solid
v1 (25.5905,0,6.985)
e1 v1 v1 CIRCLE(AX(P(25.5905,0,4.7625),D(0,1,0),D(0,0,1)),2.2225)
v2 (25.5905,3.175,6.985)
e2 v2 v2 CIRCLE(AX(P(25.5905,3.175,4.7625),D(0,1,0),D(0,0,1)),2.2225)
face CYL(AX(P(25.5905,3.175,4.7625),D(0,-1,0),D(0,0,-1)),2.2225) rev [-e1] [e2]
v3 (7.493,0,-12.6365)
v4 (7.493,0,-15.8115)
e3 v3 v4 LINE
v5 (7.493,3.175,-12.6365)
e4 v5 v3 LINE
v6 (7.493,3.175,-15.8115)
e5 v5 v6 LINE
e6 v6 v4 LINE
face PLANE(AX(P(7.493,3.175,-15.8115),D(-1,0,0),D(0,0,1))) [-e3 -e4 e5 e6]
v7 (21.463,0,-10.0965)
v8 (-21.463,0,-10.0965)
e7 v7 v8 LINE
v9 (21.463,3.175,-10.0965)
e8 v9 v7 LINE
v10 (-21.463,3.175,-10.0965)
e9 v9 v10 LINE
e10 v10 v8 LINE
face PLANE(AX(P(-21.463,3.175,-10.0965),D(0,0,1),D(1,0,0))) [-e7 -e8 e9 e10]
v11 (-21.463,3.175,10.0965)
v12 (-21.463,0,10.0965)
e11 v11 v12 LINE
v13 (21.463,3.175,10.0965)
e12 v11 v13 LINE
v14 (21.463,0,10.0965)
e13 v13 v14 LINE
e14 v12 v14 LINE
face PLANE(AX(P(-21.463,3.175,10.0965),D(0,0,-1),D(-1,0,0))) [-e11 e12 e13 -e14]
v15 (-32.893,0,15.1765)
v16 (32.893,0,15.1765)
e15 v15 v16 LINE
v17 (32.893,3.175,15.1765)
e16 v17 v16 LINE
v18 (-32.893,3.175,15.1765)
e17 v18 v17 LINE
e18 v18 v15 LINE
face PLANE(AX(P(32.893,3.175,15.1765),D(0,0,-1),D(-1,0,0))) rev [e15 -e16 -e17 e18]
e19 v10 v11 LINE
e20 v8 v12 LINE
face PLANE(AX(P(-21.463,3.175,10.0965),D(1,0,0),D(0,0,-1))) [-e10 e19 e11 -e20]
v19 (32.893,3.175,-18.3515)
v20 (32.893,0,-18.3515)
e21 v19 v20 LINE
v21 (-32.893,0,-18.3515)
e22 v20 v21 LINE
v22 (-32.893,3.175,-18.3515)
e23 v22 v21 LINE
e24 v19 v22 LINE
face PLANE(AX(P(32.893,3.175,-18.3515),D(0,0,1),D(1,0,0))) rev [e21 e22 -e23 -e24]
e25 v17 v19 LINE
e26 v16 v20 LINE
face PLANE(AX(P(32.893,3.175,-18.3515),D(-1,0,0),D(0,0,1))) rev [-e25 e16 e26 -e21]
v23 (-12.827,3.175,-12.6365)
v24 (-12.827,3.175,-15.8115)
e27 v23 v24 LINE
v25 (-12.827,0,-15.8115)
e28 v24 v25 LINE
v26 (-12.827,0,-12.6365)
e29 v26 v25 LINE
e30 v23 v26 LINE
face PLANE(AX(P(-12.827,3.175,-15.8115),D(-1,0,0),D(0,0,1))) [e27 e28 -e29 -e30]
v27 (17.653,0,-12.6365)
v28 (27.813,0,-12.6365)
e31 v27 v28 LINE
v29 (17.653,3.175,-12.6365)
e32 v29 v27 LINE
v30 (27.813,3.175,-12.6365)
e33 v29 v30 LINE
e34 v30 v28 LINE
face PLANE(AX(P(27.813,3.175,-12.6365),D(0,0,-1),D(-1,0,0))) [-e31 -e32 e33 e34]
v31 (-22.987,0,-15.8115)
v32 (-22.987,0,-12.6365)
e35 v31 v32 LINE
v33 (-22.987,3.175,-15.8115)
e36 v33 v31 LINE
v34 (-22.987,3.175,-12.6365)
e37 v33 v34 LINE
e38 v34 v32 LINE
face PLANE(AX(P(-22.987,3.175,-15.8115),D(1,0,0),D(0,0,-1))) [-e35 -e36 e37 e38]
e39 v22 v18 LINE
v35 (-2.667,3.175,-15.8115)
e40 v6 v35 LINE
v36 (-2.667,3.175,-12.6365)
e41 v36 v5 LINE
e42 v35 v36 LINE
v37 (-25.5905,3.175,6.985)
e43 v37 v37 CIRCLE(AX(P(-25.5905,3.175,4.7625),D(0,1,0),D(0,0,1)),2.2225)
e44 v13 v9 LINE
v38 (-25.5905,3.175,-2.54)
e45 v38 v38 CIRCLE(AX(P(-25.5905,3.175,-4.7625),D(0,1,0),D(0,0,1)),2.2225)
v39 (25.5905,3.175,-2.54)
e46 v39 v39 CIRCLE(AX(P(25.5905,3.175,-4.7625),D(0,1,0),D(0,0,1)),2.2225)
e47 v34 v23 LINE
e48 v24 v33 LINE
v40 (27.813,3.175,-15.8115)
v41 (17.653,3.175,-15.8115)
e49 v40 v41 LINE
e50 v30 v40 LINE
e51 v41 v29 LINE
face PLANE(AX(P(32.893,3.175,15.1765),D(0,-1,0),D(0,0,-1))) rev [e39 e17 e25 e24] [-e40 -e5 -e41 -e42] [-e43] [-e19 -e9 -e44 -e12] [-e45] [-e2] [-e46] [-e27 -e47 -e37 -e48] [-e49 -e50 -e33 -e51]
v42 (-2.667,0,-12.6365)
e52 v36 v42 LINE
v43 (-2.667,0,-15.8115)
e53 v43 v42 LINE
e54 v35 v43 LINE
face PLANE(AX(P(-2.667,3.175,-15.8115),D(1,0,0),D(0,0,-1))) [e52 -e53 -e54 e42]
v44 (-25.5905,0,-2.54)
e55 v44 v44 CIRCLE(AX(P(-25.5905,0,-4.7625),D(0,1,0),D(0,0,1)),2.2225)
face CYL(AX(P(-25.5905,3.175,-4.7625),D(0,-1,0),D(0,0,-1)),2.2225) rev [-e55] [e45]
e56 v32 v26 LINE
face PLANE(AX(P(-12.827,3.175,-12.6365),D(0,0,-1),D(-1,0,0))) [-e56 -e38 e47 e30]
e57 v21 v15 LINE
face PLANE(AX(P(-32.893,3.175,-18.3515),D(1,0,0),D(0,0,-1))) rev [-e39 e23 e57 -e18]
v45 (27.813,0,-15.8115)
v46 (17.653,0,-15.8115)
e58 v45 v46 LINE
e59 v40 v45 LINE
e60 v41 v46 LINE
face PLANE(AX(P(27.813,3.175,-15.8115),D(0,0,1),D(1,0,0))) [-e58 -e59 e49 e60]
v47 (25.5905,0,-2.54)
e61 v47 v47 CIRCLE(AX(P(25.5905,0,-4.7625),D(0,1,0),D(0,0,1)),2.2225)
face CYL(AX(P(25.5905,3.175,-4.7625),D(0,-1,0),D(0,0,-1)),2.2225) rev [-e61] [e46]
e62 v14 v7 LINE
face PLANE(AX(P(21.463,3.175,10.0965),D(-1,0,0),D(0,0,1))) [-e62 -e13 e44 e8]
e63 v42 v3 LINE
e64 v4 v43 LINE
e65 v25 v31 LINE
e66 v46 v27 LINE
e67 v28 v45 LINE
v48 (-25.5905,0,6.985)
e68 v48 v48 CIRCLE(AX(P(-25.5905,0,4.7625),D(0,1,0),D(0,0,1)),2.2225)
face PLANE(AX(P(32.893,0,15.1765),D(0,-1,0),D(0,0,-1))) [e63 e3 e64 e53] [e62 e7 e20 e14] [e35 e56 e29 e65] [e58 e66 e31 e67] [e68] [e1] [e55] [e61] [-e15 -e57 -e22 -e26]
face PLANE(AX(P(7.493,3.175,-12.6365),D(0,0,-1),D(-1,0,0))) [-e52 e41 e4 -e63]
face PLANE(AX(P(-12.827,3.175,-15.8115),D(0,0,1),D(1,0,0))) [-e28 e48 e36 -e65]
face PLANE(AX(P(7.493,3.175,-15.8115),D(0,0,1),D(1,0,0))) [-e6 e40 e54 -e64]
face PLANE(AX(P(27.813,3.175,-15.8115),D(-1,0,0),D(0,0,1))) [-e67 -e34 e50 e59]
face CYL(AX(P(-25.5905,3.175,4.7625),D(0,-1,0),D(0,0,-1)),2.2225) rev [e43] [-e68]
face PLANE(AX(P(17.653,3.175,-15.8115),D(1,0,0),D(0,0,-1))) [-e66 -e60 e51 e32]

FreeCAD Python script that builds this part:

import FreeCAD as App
import Part
import Sketcher

V = App.Vector
Q = App.Units.Quantity

doc = App.newDocument("Part")
body = doc.addObject("PartDesign::Body", "Body")

# Sketch on XZ plane
sketch1 = doc.addObject("Sketcher::SketchObject", "Sketch")
body.addObject(sketch1)
sketch1.AttachmentSupport = (doc.XZ_Plane, [""])
sketch1.MapMode = "FlatFace"
sketch1.addGeometry(Part.LineSegment(V(-32.893, -18.3515, 0), V(-32.893, 15.1765, 0)), False)
sketch1.addGeometry(Part.LineSegment(V(-32.893, 15.1765, 0), V(32.893, 15.1765, 0)), False)
sketch1.addGeometry(Part.LineSegment(V(32.893, 15.1765, 0), V(32.893, -18.3515, 0)), False)
sketch1.addGeometry(Part.LineSegment(V(32.893, -18.3515, 0), V(-32.893, -18.3515, 0)), False)
sketch1.addGeometry(Part.Circle(V(-25.5905, 4.7625, 0), V(0, 0, 1), 2.2225), False)
sketch1.addGeometry(Part.LineSegment(V(21.463, 10.0965, 0), V(-21.463, 10.0965, 0)), False)
sketch1.addGeometry(Part.LineSegment(V(-21.463, 10.0965, 0), V(-21.463, -10.0965, 0)), False)
sketch1.addGeometry(Part.LineSegment(V(-21.463, -10.0965, 0), V(21.463, -10.0965, 0)), False)
sketch1.addGeometry(Part.LineSegment(V(21.463, -10.0965, 0), V(21.463, 10.0965, 0)), False)
sketch1.addGeometry(Part.Circle(V(25.5905, 4.7625, 0), V(0, 0, 1), 2.2225), False)
sketch1.addGeometry(Part.Circle(V(-25.5905, -4.7625, 0), V(0, 0, 1), 2.2225), False)
sketch1.addGeometry(Part.LineSegment(V(-12.827, -12.6365, 0), V(-22.987, -12.6365, 0)), False)
sketch1.addGeometry(Part.LineSegment(V(-22.987, -12.6365, 0), V(-22.987, -15.8115, 0)), False)
sketch1.addGeometry(Part.LineSegment(V(-22.987, -15.8115, 0), V(-12.827, -15.8115, 0)), False)
sketch1.addGeometry(Part.LineSegment(V(-12.827, -15.8115, 0), V(-12.827, -12.6365, 0)), False)
sketch1.addGeometry(Part.Circle(V(25.5905, -4.7625, 0), V(0, 0, 1), 2.2225), False)
sketch1.addGeometry(Part.LineSegment(V(7.493, -12.6365, 0), V(-2.667, -12.6365, 0)), False)
sketch1.addGeometry(Part.LineSegment(V(-2.667, -12.6365, 0), V(-2.667, -15.8115, 0)), False)
sketch1.addGeometry(Part.LineSegment(V(-2.667, -15.8115, 0), V(7.493, -15.8115, 0)), False)
sketch1.addGeometry(Part.LineSegment(V(7.493, -15.8115, 0), V(7.493, -12.6365, 0)), False)
sketch1.addGeometry(Part.LineSegment(V(27.813, -12.6365, 0), V(17.653, -12.6365, 0)), False)
sketch1.addGeometry(Part.LineSegment(V(17.653, -12.6365, 0), V(17.653, -15.8115, 0)), False)
sketch1.addGeometry(Part.LineSegment(V(17.653, -15.8115, 0), V(27.813, -15.8115, 0)), False)
sketch1.addGeometry(Part.LineSegment(V(27.813, -15.8115, 0), V(27.813, -12.6365, 0)), False)
sketch1.addConstraint(Sketcher.Constraint("Coincident", 0, 2, 1, 1))
sketch1.addConstraint(Sketcher.Constraint("Coincident", 1, 2, 2, 1))
sketch1.addConstraint(Sketcher.Constraint("Coincident", 2, 2, 3, 1))
sketch1.addConstraint(Sketcher.Constraint("Coincident", 3, 2, 0, 1))
sketch1.addConstraint(Sketcher.Constraint("Coincident", 5, 2, 6, 1))
sketch1.addConstraint(Sketcher.Constraint("Coincident", 6, 2, 7, 1))
sketch1.addConstraint(Sketcher.Constraint("Coincident", 7, 2, 8, 1))
sketch1.addConstraint(Sketcher.Constraint("Coincident", 8, 2, 5, 1))
sketch1.addConstraint(Sketcher.Constraint("Coincident", 11, 2, 12, 1))
sketch1.addConstraint(Sketcher.Constraint("Coincident", 12, 2, 13, 1))
sketch1.addConstraint(Sketcher.Constraint("Coincident", 13, 2, 14, 1))
sketch1.addConstraint(Sketcher.Constraint("Coincident", 14, 2, 11, 1))
sketch1.addConstraint(Sketcher.Constraint("Coincident", 16, 2, 17, 1))
sketch1.addConstraint(Sketcher.Constraint("Coincident", 17, 2, 18, 1))
sketch1.addConstraint(Sketcher.Constraint("Coincident", 18, 2, 19, 1))
sketch1.addConstraint(Sketcher.Constraint("Coincident", 19, 2, 16, 1))
sketch1.addConstraint(Sketcher.Constraint("Coincident", 20, 2, 21, 1))
sketch1.addConstraint(Sketcher.Constraint("Coincident", 21, 2, 22, 1))
sketch1.addConstraint(Sketcher.Constraint("Coincident", 22, 2, 23, 1))
sketch1.addConstraint(Sketcher.Constraint("Coincident", 23, 2, 20, 1))
sketch1.addConstraint(Sketcher.Constraint("Vertical", 0))
sketch1.addConstraint(Sketcher.Constraint("Horizontal", 1))
sketch1.addConstraint(Sketcher.Constraint("Vertical", 2))
sketch1.addConstraint(Sketcher.Constraint("Horizontal", 3))
sketch1.addConstraint(Sketcher.Constraint("Horizontal", 5))
sketch1.addConstraint(Sketcher.Constraint("Vertical", 6))
sketch1.addConstraint(Sketcher.Constraint("Horizontal", 7))
sketch1.addConstraint(Sketcher.Constraint("Vertical", 8))
sketch1.addConstraint(Sketcher.Constraint("Horizontal", 11))
sketch1.addConstraint(Sketcher.Constraint("Vertical", 12))
sketch1.addConstraint(Sketcher.Constraint("Horizontal", 13))
sketch1.addConstraint(Sketcher.Constraint("Vertical", 14))
sketch1.addConstraint(Sketcher.Constraint("Horizontal", 16))
sketch1.addConstraint(Sketcher.Constraint("Vertical", 17))
sketch1.addConstraint(Sketcher.Constraint("Horizontal", 18))
sketch1.addConstraint(Sketcher.Constraint("Vertical", 19))
sketch1.addConstraint(Sketcher.Constraint("Horizontal", 20))
sketch1.addConstraint(Sketcher.Constraint("Vertical", 21))
sketch1.addConstraint(Sketcher.Constraint("Horizontal", 22))
sketch1.addConstraint(Sketcher.Constraint("Vertical", 23))
sketch1.addConstraint(Sketcher.Constraint("Equal", 4, 9))
sketch1.addConstraint(Sketcher.Constraint("Equal", 9, 10))
sketch1.addConstraint(Sketcher.Constraint("Equal", 10, 15))
sketch1.addConstraint(Sketcher.Constraint("Symmetric", 9, 3, 10, 3, -1, 1))
sketch1.addConstraint(Sketcher.Constraint("Symmetric", 4, 3, 15, 3, -1, 1))
sketch1.addConstraint(Sketcher.Constraint("Symmetric", 5, 2, 7, 2, -1, 1))
sketch1.addConstraint(Sketcher.Constraint("Symmetric", 4, 3, 9, 3, -2))
sketch1.addConstraint(Sketcher.Constraint("Horizontal", 14, 2, 16, 2))
sketch1.addConstraint(Sketcher.Constraint("Horizontal", 13, 2, 17, 2))
sketch1.addConstraint(Sketcher.Constraint("Horizontal", 19, 2, 20, 2))
sketch1.addConstraint(Sketcher.Constraint("Horizontal", 18, 2, 21, 2))
sketch1.addConstraint(Sketcher.Constraint("Equal", 13, 16))
sketch1.addConstraint(Sketcher.Constraint("Equal", 18, 20))
sketch1.addConstraint(Sketcher.Constraint("Diameter", 4, Q("0.175 in")))
sketch1.addConstraint(Sketcher.Constraint("DistanceX", 11, 2, 11, 1, Q("0.4 in")))
sketch1.addConstraint(Sketcher.Constraint("DistanceX", 1, 1, 1, 2, Q("2.59 in")))
sketch1.addConstraint(Sketcher.Constraint("DistanceX", 5, 2, 5, 1, Q("1.69 in")))
sketch1.addConstraint(Sketcher.Constraint("DistanceY", 0, 1, 0, 2, Q("1.32 in")))
sketch1.addConstraint(Sketcher.Constraint("DistanceY", 5, 2, 0, 2, Q("0.2 in")))
sketch1.addConstraint(Sketcher.Constraint("DistanceY", 11, 2, 6, 2, Q("0.1 in")))
sketch1.addConstraint(Sketcher.Constraint("DistanceY", 3, 2, 12, 2, Q("0.1 in")))
sketch1.addConstraint(Sketcher.Constraint("DistanceX", 14, 2, 16, 2, Q("0.4 in")))
sketch1.addConstraint(Sketcher.Constraint("DistanceX", 19, 2, 20, 2, Q("0.4 in")))
sketch1.addConstraint(Sketcher.Constraint("DistanceX", 20, 2, 2, 2, Q("0.6 in")))
sketch1.addConstraint(Sketcher.Constraint("DistanceY", 6, 2, 6, 1, Q("0.795 in")))
sketch1.addConstraint(Sketcher.Constraint("DistanceY", 4, 3, 0, 2, Q("0.41 in")))
sketch1.addConstraint(Sketcher.Constraint("DistanceX", 0, 2, 5, 2, Q("0.45 in")))
sketch1.addConstraint(Sketcher.Constraint("DistanceX", 4, 3, 9, 3, Q("2.015 in")))
pad1 = doc.addObject("PartDesign::Pad", "Pad")
body.addObject(pad1)
pad1.Profile = sketch1
pad1.Length = Q("0.125 in")
pad1.Reversed = True

doc.recompute()
